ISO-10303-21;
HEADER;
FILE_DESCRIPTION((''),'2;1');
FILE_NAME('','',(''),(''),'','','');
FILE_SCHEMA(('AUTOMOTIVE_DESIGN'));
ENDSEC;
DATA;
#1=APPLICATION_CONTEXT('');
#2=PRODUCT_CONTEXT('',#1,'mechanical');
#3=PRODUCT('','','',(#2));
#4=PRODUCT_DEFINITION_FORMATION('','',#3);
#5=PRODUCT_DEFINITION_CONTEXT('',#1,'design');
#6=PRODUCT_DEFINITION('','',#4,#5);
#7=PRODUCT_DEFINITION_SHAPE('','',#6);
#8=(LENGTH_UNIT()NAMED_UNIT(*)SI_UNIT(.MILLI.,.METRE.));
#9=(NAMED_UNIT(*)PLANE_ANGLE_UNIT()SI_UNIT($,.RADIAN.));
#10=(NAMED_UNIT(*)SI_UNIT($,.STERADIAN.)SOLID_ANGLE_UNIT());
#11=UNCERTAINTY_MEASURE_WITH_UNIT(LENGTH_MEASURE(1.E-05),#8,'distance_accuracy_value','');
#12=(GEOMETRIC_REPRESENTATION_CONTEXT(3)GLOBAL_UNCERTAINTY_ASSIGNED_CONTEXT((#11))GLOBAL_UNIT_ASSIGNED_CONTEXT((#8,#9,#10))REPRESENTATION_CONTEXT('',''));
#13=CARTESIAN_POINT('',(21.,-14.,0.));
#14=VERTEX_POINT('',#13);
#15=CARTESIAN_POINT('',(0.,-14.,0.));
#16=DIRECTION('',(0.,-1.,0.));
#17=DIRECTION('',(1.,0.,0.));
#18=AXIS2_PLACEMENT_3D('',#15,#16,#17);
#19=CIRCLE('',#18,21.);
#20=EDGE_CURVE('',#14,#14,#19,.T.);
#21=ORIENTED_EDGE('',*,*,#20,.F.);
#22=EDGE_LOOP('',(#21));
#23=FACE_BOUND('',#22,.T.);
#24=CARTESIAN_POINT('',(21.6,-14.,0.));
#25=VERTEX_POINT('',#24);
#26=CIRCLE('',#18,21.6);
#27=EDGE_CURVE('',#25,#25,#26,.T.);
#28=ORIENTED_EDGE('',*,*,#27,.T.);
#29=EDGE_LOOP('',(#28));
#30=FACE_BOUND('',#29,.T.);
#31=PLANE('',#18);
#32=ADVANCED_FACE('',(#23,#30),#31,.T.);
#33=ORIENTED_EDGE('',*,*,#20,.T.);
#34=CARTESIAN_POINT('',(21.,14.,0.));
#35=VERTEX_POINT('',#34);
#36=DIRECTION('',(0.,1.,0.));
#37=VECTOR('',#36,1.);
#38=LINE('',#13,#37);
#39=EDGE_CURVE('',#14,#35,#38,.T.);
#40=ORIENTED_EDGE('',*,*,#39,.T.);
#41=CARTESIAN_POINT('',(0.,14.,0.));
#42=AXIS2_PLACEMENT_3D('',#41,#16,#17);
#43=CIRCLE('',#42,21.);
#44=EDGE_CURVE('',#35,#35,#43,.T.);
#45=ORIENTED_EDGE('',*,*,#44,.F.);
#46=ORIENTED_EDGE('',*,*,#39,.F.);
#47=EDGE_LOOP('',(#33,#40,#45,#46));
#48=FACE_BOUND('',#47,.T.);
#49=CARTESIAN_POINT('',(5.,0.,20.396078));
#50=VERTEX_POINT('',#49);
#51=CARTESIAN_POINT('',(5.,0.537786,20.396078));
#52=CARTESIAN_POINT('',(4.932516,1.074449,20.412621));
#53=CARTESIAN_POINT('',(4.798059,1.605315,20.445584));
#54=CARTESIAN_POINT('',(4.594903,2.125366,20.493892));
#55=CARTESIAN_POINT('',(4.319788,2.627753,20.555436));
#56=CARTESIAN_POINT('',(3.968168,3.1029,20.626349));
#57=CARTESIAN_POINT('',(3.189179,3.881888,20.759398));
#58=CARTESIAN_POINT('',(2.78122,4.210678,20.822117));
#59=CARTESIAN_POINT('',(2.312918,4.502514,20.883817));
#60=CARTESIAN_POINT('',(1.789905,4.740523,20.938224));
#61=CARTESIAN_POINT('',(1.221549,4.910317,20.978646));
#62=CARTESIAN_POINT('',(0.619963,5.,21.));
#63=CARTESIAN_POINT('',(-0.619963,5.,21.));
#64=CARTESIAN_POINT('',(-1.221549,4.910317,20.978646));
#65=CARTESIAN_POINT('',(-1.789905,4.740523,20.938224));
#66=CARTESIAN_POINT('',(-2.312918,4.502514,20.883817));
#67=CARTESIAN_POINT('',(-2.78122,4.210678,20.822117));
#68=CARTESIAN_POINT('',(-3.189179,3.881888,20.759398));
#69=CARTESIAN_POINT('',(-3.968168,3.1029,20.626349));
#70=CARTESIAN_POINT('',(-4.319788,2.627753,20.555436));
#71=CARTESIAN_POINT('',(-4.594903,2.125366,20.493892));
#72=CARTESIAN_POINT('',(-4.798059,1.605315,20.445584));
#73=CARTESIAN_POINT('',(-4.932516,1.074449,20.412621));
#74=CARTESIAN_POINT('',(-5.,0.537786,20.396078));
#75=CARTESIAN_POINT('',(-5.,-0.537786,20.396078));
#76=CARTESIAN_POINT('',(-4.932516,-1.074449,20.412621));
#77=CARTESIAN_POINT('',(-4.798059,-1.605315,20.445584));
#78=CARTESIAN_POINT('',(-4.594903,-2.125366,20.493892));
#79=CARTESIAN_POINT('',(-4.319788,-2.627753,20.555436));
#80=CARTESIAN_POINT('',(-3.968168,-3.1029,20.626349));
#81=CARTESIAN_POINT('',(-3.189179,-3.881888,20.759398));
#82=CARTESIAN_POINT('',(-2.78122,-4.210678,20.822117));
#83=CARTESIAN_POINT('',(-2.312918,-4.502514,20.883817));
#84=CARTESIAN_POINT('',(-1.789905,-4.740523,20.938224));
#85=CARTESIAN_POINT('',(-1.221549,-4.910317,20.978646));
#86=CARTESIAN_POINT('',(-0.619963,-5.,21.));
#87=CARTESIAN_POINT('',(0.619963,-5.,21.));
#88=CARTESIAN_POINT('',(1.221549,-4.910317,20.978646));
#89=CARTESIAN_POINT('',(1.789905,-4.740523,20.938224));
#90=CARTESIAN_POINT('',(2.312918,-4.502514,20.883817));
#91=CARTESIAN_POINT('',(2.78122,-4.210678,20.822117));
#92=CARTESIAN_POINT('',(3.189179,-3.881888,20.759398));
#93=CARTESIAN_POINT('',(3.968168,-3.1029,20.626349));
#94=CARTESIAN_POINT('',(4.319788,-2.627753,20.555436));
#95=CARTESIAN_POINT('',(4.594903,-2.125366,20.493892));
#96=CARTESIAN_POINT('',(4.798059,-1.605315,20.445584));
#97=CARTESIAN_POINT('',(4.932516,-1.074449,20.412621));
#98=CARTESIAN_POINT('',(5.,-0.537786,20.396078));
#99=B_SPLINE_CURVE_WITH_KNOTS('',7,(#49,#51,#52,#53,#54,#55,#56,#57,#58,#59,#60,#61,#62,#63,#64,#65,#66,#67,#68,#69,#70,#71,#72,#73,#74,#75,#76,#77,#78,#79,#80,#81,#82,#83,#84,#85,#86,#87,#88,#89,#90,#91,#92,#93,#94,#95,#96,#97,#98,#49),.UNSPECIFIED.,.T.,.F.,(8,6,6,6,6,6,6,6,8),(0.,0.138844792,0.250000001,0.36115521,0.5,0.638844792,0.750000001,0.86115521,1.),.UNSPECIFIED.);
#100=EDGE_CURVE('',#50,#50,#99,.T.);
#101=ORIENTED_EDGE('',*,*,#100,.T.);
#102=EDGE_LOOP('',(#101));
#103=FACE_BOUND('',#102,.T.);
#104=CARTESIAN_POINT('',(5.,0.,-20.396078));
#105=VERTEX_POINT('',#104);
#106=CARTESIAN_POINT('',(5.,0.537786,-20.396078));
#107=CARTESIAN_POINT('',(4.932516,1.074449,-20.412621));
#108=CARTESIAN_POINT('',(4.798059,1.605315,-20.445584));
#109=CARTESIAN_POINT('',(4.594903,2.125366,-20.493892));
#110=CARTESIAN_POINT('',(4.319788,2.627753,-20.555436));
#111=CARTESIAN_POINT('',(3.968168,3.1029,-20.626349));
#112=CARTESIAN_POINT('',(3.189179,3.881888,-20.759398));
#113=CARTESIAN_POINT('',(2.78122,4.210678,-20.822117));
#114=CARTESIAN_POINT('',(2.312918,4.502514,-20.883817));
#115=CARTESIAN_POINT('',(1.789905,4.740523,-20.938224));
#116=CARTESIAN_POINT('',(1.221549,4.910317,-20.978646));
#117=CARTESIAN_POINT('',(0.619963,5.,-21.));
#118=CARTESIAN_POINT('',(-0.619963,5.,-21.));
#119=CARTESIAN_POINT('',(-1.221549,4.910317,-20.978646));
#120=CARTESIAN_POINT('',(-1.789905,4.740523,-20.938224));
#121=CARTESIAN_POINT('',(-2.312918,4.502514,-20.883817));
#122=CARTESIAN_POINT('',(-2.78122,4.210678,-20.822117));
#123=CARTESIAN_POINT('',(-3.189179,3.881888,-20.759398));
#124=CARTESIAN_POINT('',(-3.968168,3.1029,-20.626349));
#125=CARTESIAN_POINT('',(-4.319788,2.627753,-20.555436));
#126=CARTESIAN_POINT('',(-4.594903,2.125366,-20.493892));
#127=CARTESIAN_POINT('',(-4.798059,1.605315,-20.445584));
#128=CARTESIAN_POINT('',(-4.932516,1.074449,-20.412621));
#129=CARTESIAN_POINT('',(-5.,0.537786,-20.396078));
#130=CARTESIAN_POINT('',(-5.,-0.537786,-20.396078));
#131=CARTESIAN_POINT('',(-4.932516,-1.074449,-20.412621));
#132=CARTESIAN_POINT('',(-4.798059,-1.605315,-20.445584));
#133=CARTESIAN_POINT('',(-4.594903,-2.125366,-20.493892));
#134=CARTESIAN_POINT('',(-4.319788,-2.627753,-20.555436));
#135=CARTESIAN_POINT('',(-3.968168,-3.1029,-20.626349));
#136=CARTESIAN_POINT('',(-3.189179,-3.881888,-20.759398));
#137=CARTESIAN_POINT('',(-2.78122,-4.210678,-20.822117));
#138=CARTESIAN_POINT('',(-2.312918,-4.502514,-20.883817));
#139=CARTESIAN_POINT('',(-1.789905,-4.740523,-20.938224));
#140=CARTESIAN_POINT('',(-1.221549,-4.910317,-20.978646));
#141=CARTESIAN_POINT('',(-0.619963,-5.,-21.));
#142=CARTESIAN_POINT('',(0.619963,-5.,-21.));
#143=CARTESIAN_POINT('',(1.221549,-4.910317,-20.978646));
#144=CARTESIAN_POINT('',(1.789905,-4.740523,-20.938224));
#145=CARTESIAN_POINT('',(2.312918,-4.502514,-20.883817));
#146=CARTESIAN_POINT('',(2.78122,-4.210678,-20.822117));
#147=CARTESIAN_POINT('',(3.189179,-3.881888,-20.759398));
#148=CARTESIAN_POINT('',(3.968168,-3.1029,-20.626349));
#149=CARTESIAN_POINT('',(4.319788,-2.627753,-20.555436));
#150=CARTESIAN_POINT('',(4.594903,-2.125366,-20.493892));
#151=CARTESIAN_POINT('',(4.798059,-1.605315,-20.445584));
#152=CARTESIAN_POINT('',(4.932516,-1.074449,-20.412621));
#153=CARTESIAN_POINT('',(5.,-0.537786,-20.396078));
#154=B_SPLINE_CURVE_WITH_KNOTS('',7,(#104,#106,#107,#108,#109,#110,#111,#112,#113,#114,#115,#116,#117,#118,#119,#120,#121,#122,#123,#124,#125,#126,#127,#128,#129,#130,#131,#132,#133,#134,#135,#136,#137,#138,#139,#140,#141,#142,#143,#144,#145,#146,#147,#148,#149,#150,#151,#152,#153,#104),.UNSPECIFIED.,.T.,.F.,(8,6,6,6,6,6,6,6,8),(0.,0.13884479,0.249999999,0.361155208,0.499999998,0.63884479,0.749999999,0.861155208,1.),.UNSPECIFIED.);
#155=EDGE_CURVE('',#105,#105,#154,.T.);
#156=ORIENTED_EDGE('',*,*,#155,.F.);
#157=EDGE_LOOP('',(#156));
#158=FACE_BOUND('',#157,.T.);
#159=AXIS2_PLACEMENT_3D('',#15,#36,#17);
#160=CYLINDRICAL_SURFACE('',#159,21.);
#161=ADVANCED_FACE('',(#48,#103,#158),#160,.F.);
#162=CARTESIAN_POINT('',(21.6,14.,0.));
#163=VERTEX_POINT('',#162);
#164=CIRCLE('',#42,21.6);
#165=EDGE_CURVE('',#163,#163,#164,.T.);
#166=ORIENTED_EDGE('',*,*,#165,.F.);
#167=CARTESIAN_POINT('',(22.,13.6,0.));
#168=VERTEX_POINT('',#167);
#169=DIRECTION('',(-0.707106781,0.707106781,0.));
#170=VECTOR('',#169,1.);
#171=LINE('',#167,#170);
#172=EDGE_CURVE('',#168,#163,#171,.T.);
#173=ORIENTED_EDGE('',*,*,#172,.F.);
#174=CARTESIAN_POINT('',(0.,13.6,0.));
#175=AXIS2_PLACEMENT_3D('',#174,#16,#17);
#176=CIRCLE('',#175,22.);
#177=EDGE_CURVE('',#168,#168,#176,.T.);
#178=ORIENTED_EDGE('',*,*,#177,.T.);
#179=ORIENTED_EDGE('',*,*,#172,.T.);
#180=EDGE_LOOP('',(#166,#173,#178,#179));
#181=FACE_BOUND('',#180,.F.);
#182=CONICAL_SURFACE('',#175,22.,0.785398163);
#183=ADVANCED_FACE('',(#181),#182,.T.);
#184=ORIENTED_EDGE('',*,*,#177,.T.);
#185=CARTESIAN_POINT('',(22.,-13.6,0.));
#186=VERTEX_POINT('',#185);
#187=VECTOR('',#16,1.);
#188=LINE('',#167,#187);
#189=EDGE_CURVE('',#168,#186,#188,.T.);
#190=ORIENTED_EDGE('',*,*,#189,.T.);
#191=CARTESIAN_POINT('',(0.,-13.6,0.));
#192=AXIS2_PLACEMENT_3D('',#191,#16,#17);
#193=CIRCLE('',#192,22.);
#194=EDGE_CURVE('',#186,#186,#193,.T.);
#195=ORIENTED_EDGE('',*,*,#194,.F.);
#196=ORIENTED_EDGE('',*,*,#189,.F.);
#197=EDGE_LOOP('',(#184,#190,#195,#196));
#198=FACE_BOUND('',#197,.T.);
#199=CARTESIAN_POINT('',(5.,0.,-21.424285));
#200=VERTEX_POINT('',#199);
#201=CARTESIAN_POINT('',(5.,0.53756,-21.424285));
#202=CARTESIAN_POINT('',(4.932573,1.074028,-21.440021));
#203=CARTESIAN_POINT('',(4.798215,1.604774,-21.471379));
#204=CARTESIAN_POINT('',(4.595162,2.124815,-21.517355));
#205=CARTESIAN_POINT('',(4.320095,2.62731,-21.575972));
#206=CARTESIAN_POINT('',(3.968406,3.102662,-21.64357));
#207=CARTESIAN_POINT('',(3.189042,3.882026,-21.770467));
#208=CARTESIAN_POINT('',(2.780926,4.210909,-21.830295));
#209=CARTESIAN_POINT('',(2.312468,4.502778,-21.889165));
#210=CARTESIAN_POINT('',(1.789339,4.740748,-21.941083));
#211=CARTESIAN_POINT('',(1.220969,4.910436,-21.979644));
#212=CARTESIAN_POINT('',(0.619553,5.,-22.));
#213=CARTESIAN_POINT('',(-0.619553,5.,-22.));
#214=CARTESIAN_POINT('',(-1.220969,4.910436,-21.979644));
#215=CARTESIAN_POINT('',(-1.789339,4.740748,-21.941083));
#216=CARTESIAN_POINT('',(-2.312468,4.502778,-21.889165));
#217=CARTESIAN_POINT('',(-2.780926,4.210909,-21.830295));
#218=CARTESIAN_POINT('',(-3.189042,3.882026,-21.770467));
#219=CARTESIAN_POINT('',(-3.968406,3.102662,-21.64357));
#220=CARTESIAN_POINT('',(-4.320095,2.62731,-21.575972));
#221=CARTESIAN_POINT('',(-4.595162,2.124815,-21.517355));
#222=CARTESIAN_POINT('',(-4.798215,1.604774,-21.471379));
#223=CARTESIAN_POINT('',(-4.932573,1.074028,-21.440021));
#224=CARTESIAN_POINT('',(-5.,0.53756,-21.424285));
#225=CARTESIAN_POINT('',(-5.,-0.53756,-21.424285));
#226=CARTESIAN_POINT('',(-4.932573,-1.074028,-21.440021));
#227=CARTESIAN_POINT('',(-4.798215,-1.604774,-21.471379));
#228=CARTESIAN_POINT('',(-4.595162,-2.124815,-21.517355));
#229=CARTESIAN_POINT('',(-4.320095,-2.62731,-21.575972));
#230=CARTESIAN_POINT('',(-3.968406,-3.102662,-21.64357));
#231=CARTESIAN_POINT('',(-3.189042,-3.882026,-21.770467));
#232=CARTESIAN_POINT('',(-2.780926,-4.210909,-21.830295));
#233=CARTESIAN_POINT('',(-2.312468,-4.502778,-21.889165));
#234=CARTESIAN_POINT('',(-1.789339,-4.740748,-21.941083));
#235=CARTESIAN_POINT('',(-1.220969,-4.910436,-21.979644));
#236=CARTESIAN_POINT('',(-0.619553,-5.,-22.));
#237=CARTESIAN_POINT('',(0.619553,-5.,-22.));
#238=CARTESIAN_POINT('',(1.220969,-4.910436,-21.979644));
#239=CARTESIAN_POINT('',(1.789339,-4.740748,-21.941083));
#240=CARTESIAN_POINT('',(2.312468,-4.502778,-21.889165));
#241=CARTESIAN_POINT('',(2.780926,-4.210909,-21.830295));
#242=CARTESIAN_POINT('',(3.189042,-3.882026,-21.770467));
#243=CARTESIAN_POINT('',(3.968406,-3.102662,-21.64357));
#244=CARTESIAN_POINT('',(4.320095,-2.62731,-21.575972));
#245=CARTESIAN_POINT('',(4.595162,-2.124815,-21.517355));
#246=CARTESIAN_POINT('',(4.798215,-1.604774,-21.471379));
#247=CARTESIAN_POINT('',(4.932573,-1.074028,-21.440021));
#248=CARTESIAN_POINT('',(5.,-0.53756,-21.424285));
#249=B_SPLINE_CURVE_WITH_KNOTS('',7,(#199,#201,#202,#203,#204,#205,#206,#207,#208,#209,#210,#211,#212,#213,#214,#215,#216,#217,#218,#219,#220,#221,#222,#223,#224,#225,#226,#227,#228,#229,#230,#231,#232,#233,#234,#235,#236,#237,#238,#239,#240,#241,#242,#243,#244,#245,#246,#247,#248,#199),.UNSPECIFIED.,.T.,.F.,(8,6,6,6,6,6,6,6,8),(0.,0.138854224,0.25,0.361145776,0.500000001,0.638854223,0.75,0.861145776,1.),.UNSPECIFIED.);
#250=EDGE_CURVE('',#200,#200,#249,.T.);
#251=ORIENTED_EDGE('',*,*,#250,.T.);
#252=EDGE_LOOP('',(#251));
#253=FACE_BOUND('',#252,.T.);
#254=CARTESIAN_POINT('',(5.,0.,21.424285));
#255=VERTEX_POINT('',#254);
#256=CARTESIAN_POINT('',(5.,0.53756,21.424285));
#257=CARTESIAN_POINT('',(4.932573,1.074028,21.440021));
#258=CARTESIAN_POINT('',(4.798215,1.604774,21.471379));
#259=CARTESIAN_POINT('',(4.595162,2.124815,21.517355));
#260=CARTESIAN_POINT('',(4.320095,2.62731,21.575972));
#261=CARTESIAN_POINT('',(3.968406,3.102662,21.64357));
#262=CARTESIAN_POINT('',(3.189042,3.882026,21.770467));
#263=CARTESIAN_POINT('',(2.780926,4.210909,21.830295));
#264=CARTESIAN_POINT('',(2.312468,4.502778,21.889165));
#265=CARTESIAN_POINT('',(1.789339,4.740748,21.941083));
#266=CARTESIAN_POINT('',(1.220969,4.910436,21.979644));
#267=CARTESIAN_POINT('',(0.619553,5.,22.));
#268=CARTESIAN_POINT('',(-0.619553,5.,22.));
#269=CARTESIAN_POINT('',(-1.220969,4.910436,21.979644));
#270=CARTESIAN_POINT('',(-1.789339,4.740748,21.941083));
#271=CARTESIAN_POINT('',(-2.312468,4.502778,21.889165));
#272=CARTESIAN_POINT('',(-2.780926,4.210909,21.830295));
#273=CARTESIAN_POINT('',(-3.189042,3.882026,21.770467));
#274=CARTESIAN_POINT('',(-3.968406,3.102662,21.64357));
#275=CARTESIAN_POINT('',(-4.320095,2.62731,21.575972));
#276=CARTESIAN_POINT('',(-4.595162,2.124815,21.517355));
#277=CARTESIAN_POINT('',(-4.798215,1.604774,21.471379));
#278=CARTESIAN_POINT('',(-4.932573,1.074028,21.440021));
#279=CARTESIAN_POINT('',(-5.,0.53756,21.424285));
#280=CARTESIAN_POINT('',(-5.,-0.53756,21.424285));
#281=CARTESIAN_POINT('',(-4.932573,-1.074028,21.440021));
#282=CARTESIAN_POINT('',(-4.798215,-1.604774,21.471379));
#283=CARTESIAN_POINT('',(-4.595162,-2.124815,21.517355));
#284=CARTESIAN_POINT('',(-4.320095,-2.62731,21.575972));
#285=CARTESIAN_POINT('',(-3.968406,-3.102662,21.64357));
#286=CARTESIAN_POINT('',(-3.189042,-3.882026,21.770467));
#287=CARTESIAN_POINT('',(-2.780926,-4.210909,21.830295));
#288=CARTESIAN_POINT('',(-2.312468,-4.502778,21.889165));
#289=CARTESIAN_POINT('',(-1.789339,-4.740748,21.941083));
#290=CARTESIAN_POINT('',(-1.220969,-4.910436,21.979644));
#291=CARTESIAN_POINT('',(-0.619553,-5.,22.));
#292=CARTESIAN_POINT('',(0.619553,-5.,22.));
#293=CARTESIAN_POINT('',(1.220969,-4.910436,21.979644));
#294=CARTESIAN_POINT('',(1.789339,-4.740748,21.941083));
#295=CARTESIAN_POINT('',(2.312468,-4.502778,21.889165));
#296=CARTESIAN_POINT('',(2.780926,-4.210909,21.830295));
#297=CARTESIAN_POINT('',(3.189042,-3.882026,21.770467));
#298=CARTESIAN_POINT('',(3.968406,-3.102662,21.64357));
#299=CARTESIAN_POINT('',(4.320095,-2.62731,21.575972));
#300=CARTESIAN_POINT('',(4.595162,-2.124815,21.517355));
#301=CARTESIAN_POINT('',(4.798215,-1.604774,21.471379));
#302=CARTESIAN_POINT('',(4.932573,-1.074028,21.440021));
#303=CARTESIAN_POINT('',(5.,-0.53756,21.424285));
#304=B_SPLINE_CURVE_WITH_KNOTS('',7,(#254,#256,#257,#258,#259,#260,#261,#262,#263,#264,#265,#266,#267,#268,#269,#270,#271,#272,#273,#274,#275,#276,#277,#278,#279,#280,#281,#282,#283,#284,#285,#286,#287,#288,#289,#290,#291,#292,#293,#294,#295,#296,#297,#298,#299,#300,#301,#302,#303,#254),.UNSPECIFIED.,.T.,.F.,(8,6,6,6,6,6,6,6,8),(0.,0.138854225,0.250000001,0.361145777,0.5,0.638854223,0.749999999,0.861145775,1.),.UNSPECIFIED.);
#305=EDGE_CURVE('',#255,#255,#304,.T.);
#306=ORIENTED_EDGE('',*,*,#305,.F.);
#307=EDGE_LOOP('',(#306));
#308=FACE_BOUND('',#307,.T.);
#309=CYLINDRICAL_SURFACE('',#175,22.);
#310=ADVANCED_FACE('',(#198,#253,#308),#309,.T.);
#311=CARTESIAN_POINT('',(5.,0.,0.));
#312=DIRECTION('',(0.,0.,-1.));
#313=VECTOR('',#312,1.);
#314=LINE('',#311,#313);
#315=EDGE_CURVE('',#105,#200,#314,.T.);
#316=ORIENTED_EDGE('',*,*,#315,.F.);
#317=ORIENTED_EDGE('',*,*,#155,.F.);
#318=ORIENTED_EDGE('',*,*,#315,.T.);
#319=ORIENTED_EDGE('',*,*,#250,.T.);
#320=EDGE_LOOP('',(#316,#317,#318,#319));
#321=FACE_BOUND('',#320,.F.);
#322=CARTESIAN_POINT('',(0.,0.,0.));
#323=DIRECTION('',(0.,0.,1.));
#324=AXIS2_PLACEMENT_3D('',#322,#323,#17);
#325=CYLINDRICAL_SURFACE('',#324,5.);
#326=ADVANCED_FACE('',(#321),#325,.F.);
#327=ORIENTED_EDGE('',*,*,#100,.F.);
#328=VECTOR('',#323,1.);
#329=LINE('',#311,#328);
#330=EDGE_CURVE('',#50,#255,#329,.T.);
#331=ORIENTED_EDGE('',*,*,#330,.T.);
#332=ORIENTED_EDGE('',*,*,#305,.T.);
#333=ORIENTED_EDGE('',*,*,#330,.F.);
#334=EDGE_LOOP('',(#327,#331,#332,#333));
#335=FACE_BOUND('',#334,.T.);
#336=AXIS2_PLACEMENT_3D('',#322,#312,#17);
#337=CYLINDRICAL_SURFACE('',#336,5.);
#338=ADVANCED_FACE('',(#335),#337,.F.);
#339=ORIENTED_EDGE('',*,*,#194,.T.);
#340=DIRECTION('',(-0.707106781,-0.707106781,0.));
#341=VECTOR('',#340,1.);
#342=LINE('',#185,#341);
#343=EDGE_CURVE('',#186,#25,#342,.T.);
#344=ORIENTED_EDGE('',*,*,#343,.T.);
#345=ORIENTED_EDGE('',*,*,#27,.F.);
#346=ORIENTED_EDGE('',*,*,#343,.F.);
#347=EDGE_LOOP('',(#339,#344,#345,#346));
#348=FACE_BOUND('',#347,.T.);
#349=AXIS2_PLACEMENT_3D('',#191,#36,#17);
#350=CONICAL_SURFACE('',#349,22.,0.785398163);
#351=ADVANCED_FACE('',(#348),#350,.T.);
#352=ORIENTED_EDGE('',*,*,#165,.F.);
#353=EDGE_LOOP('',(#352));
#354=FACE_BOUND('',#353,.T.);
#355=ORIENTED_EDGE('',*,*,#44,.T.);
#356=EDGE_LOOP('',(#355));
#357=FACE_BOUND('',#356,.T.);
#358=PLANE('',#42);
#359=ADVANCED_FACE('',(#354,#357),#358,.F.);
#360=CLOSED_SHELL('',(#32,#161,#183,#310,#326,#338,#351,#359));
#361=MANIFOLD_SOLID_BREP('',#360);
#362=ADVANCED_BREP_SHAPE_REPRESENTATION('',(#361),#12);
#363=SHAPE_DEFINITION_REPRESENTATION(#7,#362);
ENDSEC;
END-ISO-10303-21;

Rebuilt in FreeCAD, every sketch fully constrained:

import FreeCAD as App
import Part
import Sketcher

V = App.Vector
Q = App.Units.Quantity


def add_polygon(sketch, points):
    """Adds a closed chain of lines whose ends are joined by coincident constraints."""
    first, n = sketch.GeometryCount, len(points)
    for a, b in zip(points, points[1:] + points[:1]):
        sketch.addGeometry(Part.LineSegment(App.Vector(*a, 0), App.Vector(*b, 0)), False)
    for i in range(n):
        sketch.addConstraint(Sketcher.Constraint("Coincident", first + i, 2, first + (i + 1) % n, 1))

doc = App.newDocument("Part")
body = doc.addObject("PartDesign::Body", "Body")

# Sketch on XY plane
sketch1 = body.newObject("Sketcher::SketchObject", "Sketch")
sketch1.AttachmentSupport = (doc.getObject("XY_Plane"), [""])
sketch1.MapMode = "FlatFace"
add_polygon(sketch1, [(21.6, 14), (21, 14), (21, -14), (21.6, -14), (22, -13.6), (22, 13.6)])  # lines 0-5
sketch1.addConstraint(Sketcher.Constraint("Horizontal", 0))
sketch1.addConstraint(Sketcher.Constraint("Vertical", 1))
sketch1.addConstraint(Sketcher.Constraint("Horizontal", 2))
sketch1.addConstraint(Sketcher.Constraint("Vertical", 4))
sketch1.addConstraint(Sketcher.Constraint("Symmetric", 2, 2, 5, 2, -1))
sketch1.addConstraint(Sketcher.Constraint("Perpendicular", 3, 5))
sketch1.addConstraint(Sketcher.Constraint("Equal", 3, 5))
sketch1.addConstraint(Sketcher.Constraint("DistanceY", 1, 2, 1, 1, Q("28 mm")))
sketch1.addConstraint(Sketcher.Constraint("DistanceX", 2, 2, 3, 2, Q("0.4 mm")))
sketch1.addConstraint(Sketcher.Constraint("DistanceX", 0, 2, 0, 1, Q("0.6 mm")))
sketch1.addConstraint(Sketcher.Constraint("DistanceX", -1, 1, 0, 2, Q("21 mm")))
revolution = body.newObject("PartDesign::Revolution", "Revolution")
revolution.Profile = sketch1
revolution.ReferenceAxis = (sketch1, ["V_Axis"])
revolution.Angle = 360

# Sketch on XY plane
sketch2 = body.newObject("Sketcher::SketchObject", "Sketch001")
sketch2.AttachmentSupport = (doc.getObject("XY_Plane"), [""])
sketch2.MapMode = "FlatFace"
sketch2.addGeometry(Part.Circle(V(0, 0, 0), V(0, 0, 1), 5), False)
sketch2.addConstraint(Sketcher.Constraint("Coincident", 0, 3, -1, 1))
sketch2.addConstraint(Sketcher.Constraint("Diameter", 0, Q("10 mm")))
pocket1 = body.newObject("PartDesign::Pocket", "Pocket")
pocket1.Profile = sketch2
pocket1.Type = "ThroughAll"
pocket1.Midplane = True

doc.recompute()
